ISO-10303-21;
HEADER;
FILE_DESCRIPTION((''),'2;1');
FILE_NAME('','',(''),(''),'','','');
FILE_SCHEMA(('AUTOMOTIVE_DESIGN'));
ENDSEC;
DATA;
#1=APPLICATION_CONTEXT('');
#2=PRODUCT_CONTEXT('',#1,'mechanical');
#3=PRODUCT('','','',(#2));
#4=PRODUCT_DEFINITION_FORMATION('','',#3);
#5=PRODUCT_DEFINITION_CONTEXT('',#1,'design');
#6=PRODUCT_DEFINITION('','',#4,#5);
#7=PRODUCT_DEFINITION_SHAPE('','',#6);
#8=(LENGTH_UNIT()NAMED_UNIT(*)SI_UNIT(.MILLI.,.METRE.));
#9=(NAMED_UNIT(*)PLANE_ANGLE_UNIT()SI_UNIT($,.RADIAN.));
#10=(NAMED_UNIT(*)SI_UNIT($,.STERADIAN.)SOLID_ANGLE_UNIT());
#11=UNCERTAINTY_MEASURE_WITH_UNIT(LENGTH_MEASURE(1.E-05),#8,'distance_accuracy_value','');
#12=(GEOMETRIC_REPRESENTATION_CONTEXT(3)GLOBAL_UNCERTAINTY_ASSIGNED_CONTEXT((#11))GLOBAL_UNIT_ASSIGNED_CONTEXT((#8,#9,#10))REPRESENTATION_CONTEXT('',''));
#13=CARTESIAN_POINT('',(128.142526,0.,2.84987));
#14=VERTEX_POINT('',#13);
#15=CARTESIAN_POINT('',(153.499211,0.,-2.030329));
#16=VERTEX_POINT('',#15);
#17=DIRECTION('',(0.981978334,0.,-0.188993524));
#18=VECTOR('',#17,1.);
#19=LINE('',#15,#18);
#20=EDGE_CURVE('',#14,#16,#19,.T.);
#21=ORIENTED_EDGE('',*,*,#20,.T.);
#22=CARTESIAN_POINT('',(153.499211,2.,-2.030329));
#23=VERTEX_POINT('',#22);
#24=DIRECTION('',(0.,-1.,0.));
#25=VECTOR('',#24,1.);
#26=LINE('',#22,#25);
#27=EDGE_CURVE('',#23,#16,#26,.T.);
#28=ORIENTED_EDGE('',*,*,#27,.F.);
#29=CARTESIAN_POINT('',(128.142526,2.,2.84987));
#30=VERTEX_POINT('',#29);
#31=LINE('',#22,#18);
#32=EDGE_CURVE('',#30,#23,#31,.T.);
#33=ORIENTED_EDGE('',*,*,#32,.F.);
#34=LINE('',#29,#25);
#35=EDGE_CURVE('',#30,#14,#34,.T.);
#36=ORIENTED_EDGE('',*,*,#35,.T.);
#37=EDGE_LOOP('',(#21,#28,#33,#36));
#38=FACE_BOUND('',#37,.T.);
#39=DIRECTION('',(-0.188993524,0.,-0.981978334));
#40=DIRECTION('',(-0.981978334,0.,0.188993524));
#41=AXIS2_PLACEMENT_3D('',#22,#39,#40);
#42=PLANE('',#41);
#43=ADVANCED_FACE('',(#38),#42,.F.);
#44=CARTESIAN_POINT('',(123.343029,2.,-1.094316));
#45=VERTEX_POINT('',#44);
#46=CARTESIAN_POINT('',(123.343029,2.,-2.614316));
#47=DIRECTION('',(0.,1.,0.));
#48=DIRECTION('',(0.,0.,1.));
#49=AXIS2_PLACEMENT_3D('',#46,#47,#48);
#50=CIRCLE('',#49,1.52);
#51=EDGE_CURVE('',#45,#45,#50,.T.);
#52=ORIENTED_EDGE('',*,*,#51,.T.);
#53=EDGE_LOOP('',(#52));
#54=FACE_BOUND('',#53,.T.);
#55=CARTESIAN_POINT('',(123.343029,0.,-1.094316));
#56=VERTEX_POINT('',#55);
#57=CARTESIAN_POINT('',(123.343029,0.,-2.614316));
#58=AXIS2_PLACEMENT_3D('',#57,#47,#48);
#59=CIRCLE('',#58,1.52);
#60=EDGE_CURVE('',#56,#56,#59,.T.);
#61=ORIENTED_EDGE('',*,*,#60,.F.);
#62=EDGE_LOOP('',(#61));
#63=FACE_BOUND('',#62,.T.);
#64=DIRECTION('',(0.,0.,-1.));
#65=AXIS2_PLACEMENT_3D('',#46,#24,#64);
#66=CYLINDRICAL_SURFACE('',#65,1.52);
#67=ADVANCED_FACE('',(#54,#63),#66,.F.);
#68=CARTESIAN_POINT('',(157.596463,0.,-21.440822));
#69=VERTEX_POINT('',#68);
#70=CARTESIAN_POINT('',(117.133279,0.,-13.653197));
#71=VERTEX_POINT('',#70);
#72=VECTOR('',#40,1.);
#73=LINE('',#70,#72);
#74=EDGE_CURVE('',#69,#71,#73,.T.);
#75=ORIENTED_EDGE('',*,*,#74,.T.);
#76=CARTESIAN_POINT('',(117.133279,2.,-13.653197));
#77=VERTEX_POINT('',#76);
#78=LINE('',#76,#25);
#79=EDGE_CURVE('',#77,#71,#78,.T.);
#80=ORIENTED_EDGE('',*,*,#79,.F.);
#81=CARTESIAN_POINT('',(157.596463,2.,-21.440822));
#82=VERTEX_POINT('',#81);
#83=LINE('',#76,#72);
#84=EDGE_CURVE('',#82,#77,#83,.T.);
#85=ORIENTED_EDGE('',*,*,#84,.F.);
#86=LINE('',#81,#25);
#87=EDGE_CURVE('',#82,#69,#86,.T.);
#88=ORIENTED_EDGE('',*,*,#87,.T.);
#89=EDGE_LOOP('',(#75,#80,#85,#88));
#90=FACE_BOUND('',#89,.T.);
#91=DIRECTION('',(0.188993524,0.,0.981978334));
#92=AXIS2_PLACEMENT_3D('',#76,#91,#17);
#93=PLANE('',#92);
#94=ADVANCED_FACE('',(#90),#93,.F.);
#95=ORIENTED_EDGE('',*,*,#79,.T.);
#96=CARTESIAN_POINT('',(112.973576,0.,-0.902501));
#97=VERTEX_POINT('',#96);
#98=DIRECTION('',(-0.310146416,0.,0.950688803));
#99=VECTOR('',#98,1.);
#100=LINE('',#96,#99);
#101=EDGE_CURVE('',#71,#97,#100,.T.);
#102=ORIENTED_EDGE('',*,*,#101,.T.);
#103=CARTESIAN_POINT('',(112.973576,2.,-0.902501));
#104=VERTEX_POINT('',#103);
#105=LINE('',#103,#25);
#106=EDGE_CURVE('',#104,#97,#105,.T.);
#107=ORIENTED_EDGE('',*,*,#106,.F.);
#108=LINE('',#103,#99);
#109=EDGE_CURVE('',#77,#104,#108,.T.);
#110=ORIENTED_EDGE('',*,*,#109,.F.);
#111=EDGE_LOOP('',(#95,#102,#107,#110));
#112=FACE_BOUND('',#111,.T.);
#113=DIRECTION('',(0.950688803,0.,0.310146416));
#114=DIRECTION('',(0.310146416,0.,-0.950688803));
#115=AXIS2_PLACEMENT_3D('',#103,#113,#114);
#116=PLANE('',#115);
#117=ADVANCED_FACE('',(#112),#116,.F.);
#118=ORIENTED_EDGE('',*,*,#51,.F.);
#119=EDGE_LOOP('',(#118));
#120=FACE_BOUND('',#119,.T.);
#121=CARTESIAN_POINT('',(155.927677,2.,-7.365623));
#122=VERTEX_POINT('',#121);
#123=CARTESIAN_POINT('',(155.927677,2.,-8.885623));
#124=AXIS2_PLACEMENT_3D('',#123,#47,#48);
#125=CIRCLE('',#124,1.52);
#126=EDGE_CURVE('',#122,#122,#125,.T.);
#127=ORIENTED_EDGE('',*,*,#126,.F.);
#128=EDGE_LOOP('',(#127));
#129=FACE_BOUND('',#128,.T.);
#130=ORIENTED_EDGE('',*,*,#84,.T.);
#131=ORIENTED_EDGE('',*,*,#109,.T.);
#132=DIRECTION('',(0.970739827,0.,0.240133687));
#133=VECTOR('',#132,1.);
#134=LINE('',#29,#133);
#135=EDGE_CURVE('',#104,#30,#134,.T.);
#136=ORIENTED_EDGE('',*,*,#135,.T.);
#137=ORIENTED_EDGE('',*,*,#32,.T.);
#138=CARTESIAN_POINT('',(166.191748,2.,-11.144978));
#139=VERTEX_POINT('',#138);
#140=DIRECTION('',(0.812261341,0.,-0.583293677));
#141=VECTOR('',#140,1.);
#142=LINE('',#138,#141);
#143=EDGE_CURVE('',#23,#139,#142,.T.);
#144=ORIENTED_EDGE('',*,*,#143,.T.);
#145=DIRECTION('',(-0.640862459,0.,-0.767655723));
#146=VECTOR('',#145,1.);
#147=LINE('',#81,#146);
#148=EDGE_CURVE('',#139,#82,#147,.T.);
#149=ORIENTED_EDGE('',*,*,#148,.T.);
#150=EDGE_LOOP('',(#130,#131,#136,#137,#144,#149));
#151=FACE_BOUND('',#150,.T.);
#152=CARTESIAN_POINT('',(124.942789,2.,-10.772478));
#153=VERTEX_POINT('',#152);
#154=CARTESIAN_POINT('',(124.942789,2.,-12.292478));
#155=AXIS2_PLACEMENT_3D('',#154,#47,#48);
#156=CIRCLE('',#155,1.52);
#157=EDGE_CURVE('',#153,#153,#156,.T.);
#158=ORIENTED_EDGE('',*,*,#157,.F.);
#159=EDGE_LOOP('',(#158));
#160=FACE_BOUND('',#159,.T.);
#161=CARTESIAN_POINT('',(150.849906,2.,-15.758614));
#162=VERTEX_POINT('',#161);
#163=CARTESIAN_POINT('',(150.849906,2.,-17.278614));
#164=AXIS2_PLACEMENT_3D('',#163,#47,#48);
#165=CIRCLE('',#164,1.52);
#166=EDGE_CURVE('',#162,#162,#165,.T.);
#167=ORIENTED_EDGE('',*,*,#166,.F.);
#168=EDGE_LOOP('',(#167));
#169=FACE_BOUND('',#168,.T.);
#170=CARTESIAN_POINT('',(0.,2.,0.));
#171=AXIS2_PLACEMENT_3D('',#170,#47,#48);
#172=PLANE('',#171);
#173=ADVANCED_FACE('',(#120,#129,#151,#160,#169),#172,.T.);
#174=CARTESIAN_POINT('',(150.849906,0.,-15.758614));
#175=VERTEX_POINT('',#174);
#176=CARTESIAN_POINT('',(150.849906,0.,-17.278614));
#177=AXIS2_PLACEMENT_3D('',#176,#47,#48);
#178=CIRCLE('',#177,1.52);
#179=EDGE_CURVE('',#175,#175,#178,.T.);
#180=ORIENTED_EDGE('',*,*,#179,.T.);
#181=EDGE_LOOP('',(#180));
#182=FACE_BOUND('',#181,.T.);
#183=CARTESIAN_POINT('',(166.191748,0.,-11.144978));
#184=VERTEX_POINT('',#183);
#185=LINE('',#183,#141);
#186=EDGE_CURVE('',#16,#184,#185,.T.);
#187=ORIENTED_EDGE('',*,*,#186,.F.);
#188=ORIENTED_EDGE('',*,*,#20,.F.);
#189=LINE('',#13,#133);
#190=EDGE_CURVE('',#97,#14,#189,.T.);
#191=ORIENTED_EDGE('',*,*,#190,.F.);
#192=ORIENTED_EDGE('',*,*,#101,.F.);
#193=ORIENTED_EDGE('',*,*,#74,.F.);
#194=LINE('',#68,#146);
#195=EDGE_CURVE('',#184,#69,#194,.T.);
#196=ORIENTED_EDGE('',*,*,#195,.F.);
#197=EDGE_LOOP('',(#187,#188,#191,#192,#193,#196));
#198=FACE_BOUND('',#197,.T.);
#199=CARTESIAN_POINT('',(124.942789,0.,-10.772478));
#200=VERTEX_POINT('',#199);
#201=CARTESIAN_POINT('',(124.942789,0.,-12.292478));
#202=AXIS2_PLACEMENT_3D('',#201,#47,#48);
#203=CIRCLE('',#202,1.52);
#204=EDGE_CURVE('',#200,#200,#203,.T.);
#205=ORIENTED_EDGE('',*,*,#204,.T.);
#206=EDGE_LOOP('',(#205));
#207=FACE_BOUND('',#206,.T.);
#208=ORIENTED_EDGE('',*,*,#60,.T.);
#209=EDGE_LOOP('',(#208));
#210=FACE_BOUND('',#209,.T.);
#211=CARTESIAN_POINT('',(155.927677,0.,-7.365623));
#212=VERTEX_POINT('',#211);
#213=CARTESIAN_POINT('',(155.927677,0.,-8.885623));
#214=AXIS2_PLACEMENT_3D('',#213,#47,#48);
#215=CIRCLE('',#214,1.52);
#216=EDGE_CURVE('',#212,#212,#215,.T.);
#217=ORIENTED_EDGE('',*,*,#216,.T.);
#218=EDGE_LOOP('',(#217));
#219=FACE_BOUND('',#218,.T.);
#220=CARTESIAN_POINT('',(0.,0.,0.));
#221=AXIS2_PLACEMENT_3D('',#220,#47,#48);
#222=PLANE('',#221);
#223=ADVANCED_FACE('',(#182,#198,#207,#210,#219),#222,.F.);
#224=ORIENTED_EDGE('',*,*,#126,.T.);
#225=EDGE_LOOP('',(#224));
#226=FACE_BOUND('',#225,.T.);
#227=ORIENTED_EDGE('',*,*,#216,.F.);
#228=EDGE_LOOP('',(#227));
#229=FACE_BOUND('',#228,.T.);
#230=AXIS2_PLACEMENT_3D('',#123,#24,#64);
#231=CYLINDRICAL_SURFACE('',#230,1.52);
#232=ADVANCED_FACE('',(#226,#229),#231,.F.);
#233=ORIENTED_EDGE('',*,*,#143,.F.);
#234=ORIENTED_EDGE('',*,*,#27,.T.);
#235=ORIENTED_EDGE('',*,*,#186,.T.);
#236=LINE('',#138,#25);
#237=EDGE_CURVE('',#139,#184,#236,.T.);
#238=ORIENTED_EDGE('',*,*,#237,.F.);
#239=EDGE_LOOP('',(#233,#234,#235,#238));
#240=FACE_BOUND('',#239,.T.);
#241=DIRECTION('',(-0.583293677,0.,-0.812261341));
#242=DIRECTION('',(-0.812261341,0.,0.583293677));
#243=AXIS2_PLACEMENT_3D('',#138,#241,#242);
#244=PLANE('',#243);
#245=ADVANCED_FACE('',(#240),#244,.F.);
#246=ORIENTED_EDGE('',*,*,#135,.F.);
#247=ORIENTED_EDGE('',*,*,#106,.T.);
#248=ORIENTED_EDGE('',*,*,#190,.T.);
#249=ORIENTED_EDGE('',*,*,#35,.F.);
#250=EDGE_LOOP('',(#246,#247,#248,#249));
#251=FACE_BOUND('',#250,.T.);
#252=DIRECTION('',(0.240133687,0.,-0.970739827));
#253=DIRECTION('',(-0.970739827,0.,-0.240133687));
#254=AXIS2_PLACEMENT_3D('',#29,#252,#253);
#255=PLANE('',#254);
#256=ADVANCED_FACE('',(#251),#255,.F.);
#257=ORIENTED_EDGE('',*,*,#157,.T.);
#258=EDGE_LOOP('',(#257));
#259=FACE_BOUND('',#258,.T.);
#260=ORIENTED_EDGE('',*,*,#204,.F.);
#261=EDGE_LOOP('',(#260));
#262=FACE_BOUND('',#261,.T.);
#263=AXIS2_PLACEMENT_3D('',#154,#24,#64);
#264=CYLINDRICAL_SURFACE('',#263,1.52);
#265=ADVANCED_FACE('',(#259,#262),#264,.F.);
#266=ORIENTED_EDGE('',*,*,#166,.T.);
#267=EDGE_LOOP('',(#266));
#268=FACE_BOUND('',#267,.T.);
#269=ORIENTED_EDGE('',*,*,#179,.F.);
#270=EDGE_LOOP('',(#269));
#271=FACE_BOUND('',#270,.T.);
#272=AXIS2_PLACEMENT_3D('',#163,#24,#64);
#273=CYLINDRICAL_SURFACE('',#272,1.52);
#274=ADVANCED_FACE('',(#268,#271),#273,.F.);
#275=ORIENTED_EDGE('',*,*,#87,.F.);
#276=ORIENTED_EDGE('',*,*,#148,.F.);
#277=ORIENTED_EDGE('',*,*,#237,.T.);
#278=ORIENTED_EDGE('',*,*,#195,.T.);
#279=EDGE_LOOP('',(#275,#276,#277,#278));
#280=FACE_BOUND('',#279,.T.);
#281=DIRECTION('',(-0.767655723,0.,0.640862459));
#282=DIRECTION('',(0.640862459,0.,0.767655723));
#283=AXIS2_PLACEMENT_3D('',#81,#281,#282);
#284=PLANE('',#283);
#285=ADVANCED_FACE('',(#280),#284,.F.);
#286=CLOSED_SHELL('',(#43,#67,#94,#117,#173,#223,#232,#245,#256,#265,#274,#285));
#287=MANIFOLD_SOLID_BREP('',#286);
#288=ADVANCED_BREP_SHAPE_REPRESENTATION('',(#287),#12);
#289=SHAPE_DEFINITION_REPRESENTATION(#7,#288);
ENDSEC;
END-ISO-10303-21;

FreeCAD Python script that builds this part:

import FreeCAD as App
import Part
import Sketcher

V = App.Vector


def add_polygon(sketch, points):
    """Adds a closed chain of lines whose ends are joined by coincident constraints."""
    first, n = sketch.GeometryCount, len(points)
    for a, b in zip(points, points[1:] + points[:1]):
        sketch.addGeometry(Part.LineSegment(App.Vector(*a, 0), App.Vector(*b, 0)), False)
    for i in range(n):
        sketch.addConstraint(Sketcher.Constraint("Coincident", first + i, 2, first + (i + 1) % n, 1))

doc = App.newDocument("Part")
body = doc.addObject("PartDesign::Body", "Body")

# Sketch on XZ plane
sketch1 = body.newObject("Sketcher::SketchObject", "Sketch")
sketch1.AttachmentSupport = (doc.getObject("XZ_Plane"), [""])
sketch1.MapMode = "FlatFace"
add_polygon(sketch1, [(157.6, -21.4), (117.1, -13.7), (113, -0.9), (128.1, 2.8), (153.5, -2), (166.2, -11.1)])  # lines 0-5
sketch1.addGeometry(Part.Circle(V(155.9, -8.9, 0), V(0, 0, 1), 1.5), False)  # 6
sketch1.addGeometry(Part.Circle(V(123.3, -2.6, 0), V(0, 0, 1), 1.5), False)  # 7
sketch1.addGeometry(Part.Circle(V(150.8, -17.3, 0), V(0, 0, 1), 1.5), False)  # 8
sketch1.addGeometry(Part.Circle(V(124.9, -12.3, 0), V(0, 0, 1), 1.5), False)  # 9
sketch1.addConstraint(Sketcher.Constraint("Equal", 6, 7))
sketch1.addConstraint(Sketcher.Constraint("Equal", 7, 8))
sketch1.addConstraint(Sketcher.Constraint("Equal", 8, 9))
sketch1.addConstraint(Sketcher.Constraint("Parallel", 0, 3))
sketch1.addConstraint(Sketcher.Constraint("Equal", 2, 4))
sketch1.addConstraint(Sketcher.Constraint("Equal", 1, 5))
sketch1.addConstraint(Sketcher.Constraint("Diameter", 6, 3.04))
sketch1.addConstraint(Sketcher.Constraint("DistanceY", 1, 2, -1, 1, 0.902501))
sketch1.addConstraint(Sketcher.Constraint("DistanceY", 8, 3, 7, 3, 14.664298))
sketch1.addConstraint(Sketcher.Constraint("DistanceX", 1, 2, 6, 3, 42.9541))
sketch1.addConstraint(Sketcher.Constraint("DistanceY", 3, 2, 2, 2, 4.880199))
sketch1.addConstraint(Sketcher.Constraint("DistanceY", 9, 3, 4, 2, 1.147501))
sketch1.addConstraint(Sketcher.Constraint("DistanceY", 5, 2, 6, 3, 12.555199))
sketch1.addConstraint(Sketcher.Constraint("Distance", 0, 41.205781))
sketch1.addConstraint(Sketcher.Constraint("Distance", 1, 13.41206))
sketch1.addConstraint(Sketcher.Constraint("Distance", 3, 25.822041))
sketch1.addConstraint(Sketcher.Constraint("DistanceX", -1, 1, 7, 3, 123.343029))
sketch1.addConstraint(Sketcher.Constraint("DistanceX", -1, 1, 9, 3, 124.942789))
sketch1.addConstraint(Sketcher.Constraint("DistanceY", 9, 3, -1, 1, 12.292478))
sketch1.addConstraint(Sketcher.Constraint("DistanceX", -1, 1, 0, 2, 117.133279))
sketch1.addConstraint(Sketcher.Constraint("DistanceY", -1, 1, 2, 2, 2.84987))
sketch1.addConstraint(Sketcher.Constraint("DistanceX", -1, 1, 3, 2, 153.499211))
sketch1.addConstraint(Sketcher.Constraint("DistanceX", 8, 3, 6, 3, 5.077771))
sketch1.addConstraint(Sketcher.Constraint("DistanceY", 8, 3, 6, 3, 8.392991))
pad1 = body.newObject("PartDesign::Pad", "Pad")
pad1.Profile = sketch1
pad1.Length = 2
pad1.Reversed = True

doc.recompute()
